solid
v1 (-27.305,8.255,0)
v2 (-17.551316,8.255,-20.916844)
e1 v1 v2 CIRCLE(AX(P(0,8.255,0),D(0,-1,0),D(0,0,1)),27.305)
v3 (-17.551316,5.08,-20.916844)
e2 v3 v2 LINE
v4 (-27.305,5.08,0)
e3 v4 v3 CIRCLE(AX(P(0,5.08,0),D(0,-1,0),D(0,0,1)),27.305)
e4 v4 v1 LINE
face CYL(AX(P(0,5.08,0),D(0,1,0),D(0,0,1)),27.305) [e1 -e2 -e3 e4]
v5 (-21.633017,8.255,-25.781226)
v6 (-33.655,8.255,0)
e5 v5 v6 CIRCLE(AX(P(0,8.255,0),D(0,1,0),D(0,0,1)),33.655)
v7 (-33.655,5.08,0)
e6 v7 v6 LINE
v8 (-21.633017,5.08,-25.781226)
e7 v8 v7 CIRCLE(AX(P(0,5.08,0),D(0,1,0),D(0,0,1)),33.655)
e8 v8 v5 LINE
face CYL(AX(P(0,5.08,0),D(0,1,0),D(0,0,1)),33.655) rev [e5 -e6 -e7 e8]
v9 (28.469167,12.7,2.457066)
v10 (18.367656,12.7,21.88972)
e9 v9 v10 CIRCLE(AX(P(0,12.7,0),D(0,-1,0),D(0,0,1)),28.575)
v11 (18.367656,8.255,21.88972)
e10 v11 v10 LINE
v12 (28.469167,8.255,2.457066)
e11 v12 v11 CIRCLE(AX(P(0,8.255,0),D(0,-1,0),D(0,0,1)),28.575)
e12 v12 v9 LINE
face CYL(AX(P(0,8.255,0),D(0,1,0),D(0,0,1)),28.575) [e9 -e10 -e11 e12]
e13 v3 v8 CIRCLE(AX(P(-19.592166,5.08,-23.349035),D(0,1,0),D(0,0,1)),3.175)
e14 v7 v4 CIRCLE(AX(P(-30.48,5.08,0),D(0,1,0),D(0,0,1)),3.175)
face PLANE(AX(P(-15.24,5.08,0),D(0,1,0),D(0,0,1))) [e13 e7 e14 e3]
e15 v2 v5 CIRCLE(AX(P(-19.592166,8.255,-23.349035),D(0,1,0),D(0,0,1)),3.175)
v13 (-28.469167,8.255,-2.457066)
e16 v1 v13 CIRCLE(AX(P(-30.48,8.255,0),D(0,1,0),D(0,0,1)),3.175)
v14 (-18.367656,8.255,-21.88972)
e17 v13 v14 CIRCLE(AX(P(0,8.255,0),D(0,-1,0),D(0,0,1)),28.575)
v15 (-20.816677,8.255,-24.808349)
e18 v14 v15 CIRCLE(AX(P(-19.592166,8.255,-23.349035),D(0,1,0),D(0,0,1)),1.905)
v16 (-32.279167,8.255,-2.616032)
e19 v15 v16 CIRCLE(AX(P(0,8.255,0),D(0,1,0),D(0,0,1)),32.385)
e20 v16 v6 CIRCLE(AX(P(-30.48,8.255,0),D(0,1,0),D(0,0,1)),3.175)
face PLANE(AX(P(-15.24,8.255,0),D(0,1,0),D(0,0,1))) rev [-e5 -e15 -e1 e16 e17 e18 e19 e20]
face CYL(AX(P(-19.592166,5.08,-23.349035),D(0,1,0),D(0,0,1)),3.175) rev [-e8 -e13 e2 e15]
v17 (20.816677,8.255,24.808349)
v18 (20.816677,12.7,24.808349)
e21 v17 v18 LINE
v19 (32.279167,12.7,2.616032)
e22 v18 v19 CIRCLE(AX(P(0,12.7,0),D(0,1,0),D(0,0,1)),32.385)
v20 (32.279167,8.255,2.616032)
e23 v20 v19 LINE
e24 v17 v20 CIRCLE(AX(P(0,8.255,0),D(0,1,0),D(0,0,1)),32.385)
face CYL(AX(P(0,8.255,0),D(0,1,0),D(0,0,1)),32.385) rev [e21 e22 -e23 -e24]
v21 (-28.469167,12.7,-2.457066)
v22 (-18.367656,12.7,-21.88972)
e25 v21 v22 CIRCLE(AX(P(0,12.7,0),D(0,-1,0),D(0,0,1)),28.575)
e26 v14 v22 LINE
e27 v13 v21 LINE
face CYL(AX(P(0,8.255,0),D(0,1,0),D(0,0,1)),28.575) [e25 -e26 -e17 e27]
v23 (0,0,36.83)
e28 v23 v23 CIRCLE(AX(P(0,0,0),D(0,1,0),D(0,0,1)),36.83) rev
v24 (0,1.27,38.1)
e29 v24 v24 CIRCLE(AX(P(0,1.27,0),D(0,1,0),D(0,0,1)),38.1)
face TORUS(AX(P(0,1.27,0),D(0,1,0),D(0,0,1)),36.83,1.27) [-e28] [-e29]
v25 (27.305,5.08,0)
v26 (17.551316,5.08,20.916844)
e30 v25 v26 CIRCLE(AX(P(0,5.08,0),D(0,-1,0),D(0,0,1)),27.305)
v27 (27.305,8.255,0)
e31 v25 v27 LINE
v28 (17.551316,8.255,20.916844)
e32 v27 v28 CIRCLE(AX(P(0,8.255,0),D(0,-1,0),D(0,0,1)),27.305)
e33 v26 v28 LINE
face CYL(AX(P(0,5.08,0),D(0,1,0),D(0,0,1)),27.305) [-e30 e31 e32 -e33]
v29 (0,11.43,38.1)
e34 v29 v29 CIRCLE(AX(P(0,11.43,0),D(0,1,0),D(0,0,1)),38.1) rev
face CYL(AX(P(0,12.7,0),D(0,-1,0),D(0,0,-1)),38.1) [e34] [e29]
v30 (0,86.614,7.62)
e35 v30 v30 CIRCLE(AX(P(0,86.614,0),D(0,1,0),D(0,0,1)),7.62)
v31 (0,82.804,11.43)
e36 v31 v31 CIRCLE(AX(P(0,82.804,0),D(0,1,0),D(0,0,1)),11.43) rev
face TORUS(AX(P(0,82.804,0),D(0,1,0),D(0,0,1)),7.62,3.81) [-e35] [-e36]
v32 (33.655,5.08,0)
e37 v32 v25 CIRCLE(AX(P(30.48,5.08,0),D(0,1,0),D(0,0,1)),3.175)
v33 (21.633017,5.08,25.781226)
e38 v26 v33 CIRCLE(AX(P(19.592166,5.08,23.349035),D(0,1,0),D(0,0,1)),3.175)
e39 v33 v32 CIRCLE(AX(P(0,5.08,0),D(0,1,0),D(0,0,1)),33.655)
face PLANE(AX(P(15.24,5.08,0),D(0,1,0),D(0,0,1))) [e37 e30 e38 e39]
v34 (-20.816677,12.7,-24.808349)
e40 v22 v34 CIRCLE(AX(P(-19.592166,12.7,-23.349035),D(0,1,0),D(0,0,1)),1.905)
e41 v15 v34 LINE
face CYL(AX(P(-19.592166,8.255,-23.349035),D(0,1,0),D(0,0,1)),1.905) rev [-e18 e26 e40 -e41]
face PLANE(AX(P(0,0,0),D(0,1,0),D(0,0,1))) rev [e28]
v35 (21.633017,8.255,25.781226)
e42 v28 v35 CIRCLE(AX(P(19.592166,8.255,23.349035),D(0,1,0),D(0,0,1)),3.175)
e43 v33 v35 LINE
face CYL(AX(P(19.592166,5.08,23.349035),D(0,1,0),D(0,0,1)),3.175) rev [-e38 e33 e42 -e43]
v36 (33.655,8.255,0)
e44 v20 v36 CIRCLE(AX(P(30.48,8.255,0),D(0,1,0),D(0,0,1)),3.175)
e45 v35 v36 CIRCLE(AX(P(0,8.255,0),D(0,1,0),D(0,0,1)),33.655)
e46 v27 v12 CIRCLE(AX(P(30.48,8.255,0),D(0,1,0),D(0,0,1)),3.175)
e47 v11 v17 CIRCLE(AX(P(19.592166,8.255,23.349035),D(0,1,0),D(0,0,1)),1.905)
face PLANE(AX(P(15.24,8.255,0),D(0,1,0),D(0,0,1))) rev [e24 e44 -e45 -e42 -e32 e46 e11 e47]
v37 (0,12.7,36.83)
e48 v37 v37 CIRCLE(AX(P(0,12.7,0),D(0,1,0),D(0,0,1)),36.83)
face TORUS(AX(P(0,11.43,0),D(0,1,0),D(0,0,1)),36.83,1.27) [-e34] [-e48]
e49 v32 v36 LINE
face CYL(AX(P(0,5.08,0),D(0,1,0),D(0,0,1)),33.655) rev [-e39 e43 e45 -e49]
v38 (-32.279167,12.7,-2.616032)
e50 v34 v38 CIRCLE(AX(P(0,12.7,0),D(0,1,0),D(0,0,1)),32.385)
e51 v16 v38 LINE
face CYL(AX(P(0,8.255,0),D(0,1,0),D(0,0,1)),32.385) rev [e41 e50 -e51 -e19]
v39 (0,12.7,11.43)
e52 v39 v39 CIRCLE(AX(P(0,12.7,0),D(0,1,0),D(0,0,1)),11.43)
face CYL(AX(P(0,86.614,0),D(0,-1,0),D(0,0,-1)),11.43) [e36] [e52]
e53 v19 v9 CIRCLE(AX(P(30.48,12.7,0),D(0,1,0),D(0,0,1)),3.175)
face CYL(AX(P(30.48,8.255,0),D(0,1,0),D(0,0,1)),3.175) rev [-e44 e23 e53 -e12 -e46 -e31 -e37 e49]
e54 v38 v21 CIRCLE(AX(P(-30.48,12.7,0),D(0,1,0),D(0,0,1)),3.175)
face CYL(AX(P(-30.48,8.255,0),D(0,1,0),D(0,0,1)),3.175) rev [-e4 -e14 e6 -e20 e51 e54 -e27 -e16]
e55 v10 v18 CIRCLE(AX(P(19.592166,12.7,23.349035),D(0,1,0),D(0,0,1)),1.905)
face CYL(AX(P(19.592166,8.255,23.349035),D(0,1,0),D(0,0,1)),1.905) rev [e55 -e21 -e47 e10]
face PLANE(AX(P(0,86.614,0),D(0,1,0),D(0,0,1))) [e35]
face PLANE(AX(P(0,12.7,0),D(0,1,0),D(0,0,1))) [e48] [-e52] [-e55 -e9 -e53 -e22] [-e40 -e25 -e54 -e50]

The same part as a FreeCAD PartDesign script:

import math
import FreeCAD as App
import Part
import Sketcher
Q = App.Units.Quantity


def edges_at(feature, points):
    """Names of the edges that pass closest to the given points."""
    edges = feature.Shape.Edges
    near = lambda p: min(range(len(edges)), key=lambda i: edges[i].distToShape(Part.Vertex(*p))[0])
    return sorted({f"Edge{near(p) + 1}" for p in points})

doc = App.newDocument("Part")
body = doc.addObject("PartDesign::Body", "Body")

# Sketch on XZ plane
sketch1 = body.newObject("Sketcher::SketchObject", "Sketch")
sketch1.AttachmentSupport = (doc.getObject("XZ_Plane"), [""])
sketch1.MapMode = "FlatFace"
sketch1.addGeometry(Part.Circle(App.Vector(0, 0, 0), App.Vector(0, 0, 1), 38), False)
sketch1.addConstraint([
    Sketcher.Constraint("Coincident", 0, 3, -1, 1),
    Sketcher.Constraint("Diameter", 0, Q("3 in")),
])
pad1 = body.newObject("PartDesign::Pad", "Pad")
pad1.Profile = sketch1
pad1.Length = Q("0.5 in")
pad1.Reversed = True

# Sketch on XZ plane
sketch2 = body.newObject("Sketcher::SketchObject", "Sketch001")
sketch2.AttachmentSupport = (doc.getObject("XZ_Plane"), [""])
sketch2.MapMode = "FlatFace"
sketch2.AttachmentOffset = App.Placement(App.Vector(0, 0, -0.5 * 25.4), App.Rotation())
sketch2.addGeometry(Part.Circle(App.Vector(0, 0, 0), App.Vector(0, 0, 1), 11), False)
sketch2.addConstraint([
    Sketcher.Constraint("Coincident", 0, 3, -1, 1),
    Sketcher.Constraint("Diameter", 0, Q("0.9 in")),
])
pad2 = body.newObject("PartDesign::Pad", "Pad001")
pad2.Profile = sketch2
pad2.Length = Q("2.91 in")
pad2.Reversed = True
doc.recompute()

fillet = body.newObject("PartDesign::Fillet", "Fillet")
fillet.Base = (pad2, edges_at(pad2, [(0, 12.7, -38.1)]))
fillet.Radius = Q("0.05 in")
doc.recompute()

fillet2 = body.newObject("PartDesign::Fillet", "Fillet001")
fillet2.Base = (fillet, edges_at(fillet, [(0, 0, -38.1)]))
fillet2.Radius = Q("0.05 in")
doc.recompute()

fillet3 = body.newObject("PartDesign::Fillet", "Fillet002")
fillet3.Base = (fillet2, edges_at(fillet2, [(0, 86.614, -11.43)]))
fillet3.Radius = Q("0.15 in")

# Sketch on XZ plane
sketch3 = body.newObject("Sketcher::SketchObject", "Sketch002")
sketch3.AttachmentSupport = (doc.getObject("XZ_Plane"), [""])
sketch3.MapMode = "FlatFace"
sketch3.AttachmentOffset = App.Placement(App.Vector(0, 0, -0.5 * 25.4), App.Rotation())
sketch3.addGeometry([
    Part.ArcOfCircle(Part.Circle(App.Vector(-30.5, 0, 0), App.Vector(0, 0, 1), 3.2), math.radians(-51), math.radians(235)),  # 0
    Part.ArcOfCircle(Part.Circle(App.Vector(0, 0, 0), App.Vector(0, 0, 1), 28.6), math.radians(-175), math.radians(-130)),  # 1
    Part.ArcOfCircle(Part.Circle(App.Vector(-19.6, -23.3, 0), App.Vector(0, 0, 1), 1.9), math.radians(-130), math.radians(50)),  # 2
    Part.ArcOfCircle(Part.Circle(App.Vector(0, 0, 0), App.Vector(0, 0, 1), 32.4), math.radians(-175), math.radians(-130)),  # 3
    Part.ArcOfCircle(Part.Circle(App.Vector(30.5, 0, 0), App.Vector(0, 0, 1), 3.2), math.radians(129), math.radians(415)),  # 4
    Part.ArcOfCircle(Part.Circle(App.Vector(0, 0, 0), App.Vector(0, 0, 1), 28.6), math.radians(5), math.radians(50)),  # 5
    Part.ArcOfCircle(Part.Circle(App.Vector(19.6, 23.3, 0), App.Vector(0, 0, 1), 1.9), math.radians(50), math.radians(230)),  # 6
    Part.ArcOfCircle(Part.Circle(App.Vector(0, 0, 0), App.Vector(0, 0, 1), 32.4), math.radians(5), math.radians(50)),  # 7
], False)
sketch3.addConstraint([
    Sketcher.Constraint("Coincident", 0, 1, 1, 1),
    Sketcher.Constraint("Tangent", 1, 2, 2, 2),
    Sketcher.Constraint("Tangent", 2, 1, 3, 2),
    Sketcher.Constraint("Coincident", 3, 1, 0, 2),
    Sketcher.Constraint("Coincident", 4, 1, 5, 1),
    Sketcher.Constraint("Tangent", 5, 2, 6, 2),
    Sketcher.Constraint("Tangent", 6, 1, 7, 2),
    Sketcher.Constraint("Coincident", 7, 1, 4, 2),
    Sketcher.Constraint("Coincident", 1, 3, -1, 1),
    Sketcher.Constraint("Coincident", 3, 3, -1, 1),
    Sketcher.Constraint("Coincident", 5, 3, -1, 1),
    Sketcher.Constraint("Coincident", 7, 3, -1, 1),
    Sketcher.Constraint("Equal", 0, 4),
    Sketcher.Constraint("Equal", 1, 5),
    Sketcher.Constraint("Equal", 2, 6),
    Sketcher.Constraint("Symmetric", 0, 3, 4, 3, -1, 1),
    Sketcher.Constraint("PointOnObject", 0, 3, -1),
    Sketcher.Constraint("Radius", 0, Q("0.125 in")),
    Sketcher.Constraint("Radius", 1, Q("1.125 in")),
    Sketcher.Constraint("Radius", 2, Q("0.075 in")),
    Sketcher.Constraint("DistanceX", 0, 3, -1, 1, Q("1.2 in")),
    Sketcher.Constraint("DistanceY", 1, 2, -1, 1, Q("0.8618 in")),
    Sketcher.Constraint("DistanceY", -1, 1, 5, 2, Q("0.8618 in")),
])
pocket1 = body.newObject("PartDesign::Pocket", "Pocket")
pocket1.Profile = sketch3
pocket1.Length = Q("0.175 in")
pocket1.Reversed = True

# Sketch on XZ plane
sketch4 = body.newObject("Sketcher::SketchObject", "Sketch003")
sketch4.AttachmentSupport = (doc.getObject("XZ_Plane"), [""])
sketch4.MapMode = "FlatFace"
sketch4.AttachmentOffset = App.Placement(App.Vector(0, 0, -0.325 * 25.4), App.Rotation())
sketch4.addGeometry([
    Part.ArcOfCircle(Part.Circle(App.Vector(0, 0, 0), App.Vector(0, 0, 1), 33.7), math.radians(180), math.radians(230)),  # 0
    Part.ArcOfCircle(Part.Circle(App.Vector(-30.5, 0, 0), App.Vector(0, 0, 1), 3.2), math.radians(0), math.radians(180)),  # 1
    Part.ArcOfCircle(Part.Circle(App.Vector(0, 0, 0), App.Vector(0, 0, 1), 27.3), math.radians(180), math.radians(230)),  # 2
    Part.ArcOfCircle(Part.Circle(App.Vector(-19.6, -23.3, 0), App.Vector(0, 0, 1), 3.2), math.radians(-130), math.radians(50)),  # 3
    Part.ArcOfCircle(Part.Circle(App.Vector(30.5, 0, 0), App.Vector(0, 0, 1), 3.2), math.radians(180), math.radians(360)),  # 4
    Part.ArcOfCircle(Part.Circle(App.Vector(0, 0, 0), App.Vector(0, 0, 1), 27.3), math.radians(0), math.radians(50)),  # 5
    Part.ArcOfCircle(Part.Circle(App.Vector(19.6, 23.3, 0), App.Vector(0, 0, 1), 3.2), math.radians(50), math.radians(230)),  # 6
    Part.ArcOfCircle(Part.Circle(App.Vector(0, 0, 0), App.Vector(0, 0, 1), 33.7), math.radians(0), math.radians(50)),  # 7
], False)
sketch4.addConstraint([
    Sketcher.Constraint("Tangent", 0, 1, 1, 2),
    Sketcher.Constraint("Tangent", 1, 1, 2, 1),
    Sketcher.Constraint("Tangent", 2, 2, 3, 2),
    Sketcher.Constraint("Tangent", 3, 1, 0, 2),
    Sketcher.Constraint("Tangent", 4, 1, 5, 1),
    Sketcher.Constraint("Tangent", 5, 2, 6, 2),
    Sketcher.Constraint("Tangent", 6, 1, 7, 2),
    Sketcher.Constraint("Tangent", 7, 1, 4, 2),
    Sketcher.Constraint("Coincident", 0, 3, -1, 1),
    Sketcher.Constraint("Coincident", 2, 3, -1, 1),
    Sketcher.Constraint("Coincident", 5, 3, -1, 1),
    Sketcher.Constraint("Coincident", 7, 3, -1, 1),
    Sketcher.Constraint("Equal", 3, 4),
    Sketcher.Constraint("Equal", 2, 5),
    Sketcher.Constraint("PointOnObject", 1, 3, -1),
    Sketcher.Constraint("PointOnObject", 4, 3, -1),
    Sketcher.Constraint("Radius", 0, Q("1.325 in")),
    Sketcher.Constraint("Radius", 1, Q("0.125 in")),
    Sketcher.Constraint("DistanceX", 3, 1, 2, 2, 4.081701),
    Sketcher.Constraint("DistanceX", 5, 2, 6, 1, 4.081701),
])
pocket2 = body.newObject("PartDesign::Pocket", "Pocket001")
pocket2.Profile = sketch4
pocket2.Length = Q("0.125 in")
pocket2.Reversed = True

doc.recompute()
